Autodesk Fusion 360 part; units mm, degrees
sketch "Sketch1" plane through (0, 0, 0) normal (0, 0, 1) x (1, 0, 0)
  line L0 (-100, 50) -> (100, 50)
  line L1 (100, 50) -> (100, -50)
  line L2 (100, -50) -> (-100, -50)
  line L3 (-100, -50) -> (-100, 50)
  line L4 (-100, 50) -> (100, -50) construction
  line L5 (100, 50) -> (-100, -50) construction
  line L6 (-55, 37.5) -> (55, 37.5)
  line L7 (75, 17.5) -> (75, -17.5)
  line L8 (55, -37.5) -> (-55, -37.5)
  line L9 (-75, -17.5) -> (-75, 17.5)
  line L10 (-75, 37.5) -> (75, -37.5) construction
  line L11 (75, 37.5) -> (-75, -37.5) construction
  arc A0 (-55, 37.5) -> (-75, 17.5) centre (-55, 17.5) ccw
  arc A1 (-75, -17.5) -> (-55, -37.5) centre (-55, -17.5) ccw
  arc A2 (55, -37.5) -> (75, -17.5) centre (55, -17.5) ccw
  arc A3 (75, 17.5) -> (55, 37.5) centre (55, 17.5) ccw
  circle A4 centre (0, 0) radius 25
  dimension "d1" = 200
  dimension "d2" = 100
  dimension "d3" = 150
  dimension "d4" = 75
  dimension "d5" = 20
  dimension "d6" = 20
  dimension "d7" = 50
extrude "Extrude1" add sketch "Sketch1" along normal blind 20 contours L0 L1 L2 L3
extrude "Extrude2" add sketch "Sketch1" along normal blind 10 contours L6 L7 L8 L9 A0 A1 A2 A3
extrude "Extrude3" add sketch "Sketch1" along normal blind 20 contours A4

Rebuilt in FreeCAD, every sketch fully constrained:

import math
import FreeCAD as App
import Part
import Sketcher
from FreeCAD import Vector
Q = App.Units.Quantity

doc = App.newDocument("Part")
body = doc.addObject("PartDesign::Body", "Body")

# Sketch on XY plane
sketch1 = body.newObject("Sketcher::SketchObject", "Sketch")
sketch1.AttachmentSupport = (doc.getObject("XY_Plane"), [""])
sketch1.MapMode = "FlatFace"
sketch1.addGeometry([
    Part.LineSegment(Vector(100, 50, 0), Vector(-100, 50, 0)),  # 0
    Part.LineSegment(Vector(-100, 50, 0), Vector(-100, -50, 0)),  # 1
    Part.LineSegment(Vector(-100, -50, 0), Vector(100, -50, 0)),  # 2
    Part.LineSegment(Vector(100, -50, 0), Vector(100, 50, 0)),  # 3
    Part.ArcOfCircle(Part.Circle(Vector(-55, 18, 0), Vector(0, 0, 1), 20), math.radians(90), math.radians(180)),  # 4
    Part.LineSegment(Vector(-55, 38, 0), Vector(55, 38, 0)),  # 5
    Part.ArcOfCircle(Part.Circle(Vector(55, 18, 0), Vector(0, 0, 1), 20), math.radians(0), math.radians(90)),  # 6
    Part.LineSegment(Vector(75, 18, 0), Vector(75, -18, 0)),  # 7
    Part.ArcOfCircle(Part.Circle(Vector(55, -18, 0), Vector(0, 0, 1), 20), math.radians(-90), math.radians(0)),  # 8
    Part.LineSegment(Vector(55, -38, 0), Vector(-55, -38, 0)),  # 9
    Part.ArcOfCircle(Part.Circle(Vector(-55, -18, 0), Vector(0, 0, 1), 20), math.radians(180), math.radians(270)),  # 10
    Part.LineSegment(Vector(-75, -18, 0), Vector(-75, 18, 0)),  # 11
], False)
sketch1.addConstraint([
    Sketcher.Constraint("Coincident", 0, 2, 1, 1),
    Sketcher.Constraint("Coincident", 1, 2, 2, 1),
    Sketcher.Constraint("Coincident", 2, 2, 3, 1),
    Sketcher.Constraint("Coincident", 3, 2, 0, 1),
    Sketcher.Constraint("Tangent", 4, 1, 5, 1),
    Sketcher.Constraint("Tangent", 5, 2, 6, 2),
    Sketcher.Constraint("Tangent", 6, 1, 7, 1),
    Sketcher.Constraint("Tangent", 7, 2, 8, 2),
    Sketcher.Constraint("Tangent", 8, 1, 9, 1),
    Sketcher.Constraint("Tangent", 9, 2, 10, 2),
    Sketcher.Constraint("Tangent", 10, 1, 11, 1),
    Sketcher.Constraint("Tangent", 11, 2, 4, 2),
    Sketcher.Constraint("Horizontal", 0),
    Sketcher.Constraint("Vertical", 1),
    Sketcher.Constraint("Horizontal", 2),
    Sketcher.Constraint("Vertical", 3),
    Sketcher.Constraint("Horizontal", 5),
    Sketcher.Constraint("Vertical", 7),
    Sketcher.Constraint("Horizontal", 9),
    Sketcher.Constraint("Vertical", 11),
    Sketcher.Constraint("Equal", 4, 6),
    Sketcher.Constraint("Equal", 6, 8),
    Sketcher.Constraint("Equal", 8, 10),
    Sketcher.Constraint("Symmetric", 4, 3, 8, 3, -1, 1),
    Sketcher.Constraint("Symmetric", 0, 2, 2, 2, -1, 1),
    Sketcher.Constraint("Radius", 4, Q("20 mm")),
    Sketcher.Constraint("DistanceX", 0, 2, 0, 1, Q("200 mm")),
    Sketcher.Constraint("DistanceY", 1, 2, 1, 1, Q("100 mm")),
    Sketcher.Constraint("DistanceX", -1, 1, 6, 1, Q("75 mm")),
    Sketcher.Constraint("DistanceY", 9, 2, 4, 1, Q("75 mm")),
])
pad1 = body.newObject("PartDesign::Pad", "Pad")
pad1.Profile = sketch1
pad1.Length = 20

# Sketch on XY plane
sketch2 = body.newObject("Sketcher::SketchObject", "Sketch001")
sketch2.AttachmentSupport = (doc.getObject("XY_Plane"), [""])
sketch2.MapMode = "FlatFace"
sketch2.addGeometry([
    Part.LineSegment(Vector(55, 38, 0), Vector(-55, 38, 0)),  # 0
    Part.ArcOfCircle(Part.Circle(Vector(-55, 18, 0), Vector(0, 0, 1), 20), math.radians(90), math.radians(180)),  # 1
    Part.LineSegment(Vector(-75, 18, 0), Vector(-75, -18, 0)),  # 2
    Part.ArcOfCircle(Part.Circle(Vector(-55, -18, 0), Vector(0, 0, 1), 20), math.radians(180), math.radians(270)),  # 3
    Part.LineSegment(Vector(-55, -38, 0), Vector(55, -38, 0)),  # 4
    Part.ArcOfCircle(Part.Circle(Vector(55, -18, 0), Vector(0, 0, 1), 20), math.radians(-90), math.radians(0)),  # 5
    Part.LineSegment(Vector(75, -18, 0), Vector(75, 18, 0)),  # 6
    Part.ArcOfCircle(Part.Circle(Vector(55, 18, 0), Vector(0, 0, 1), 20), math.radians(0), math.radians(90)),  # 7
    Part.Circle(Vector(0, 0, 0), Vector(0, 0, 1), 25),  # 8
], False)
sketch2.addConstraint([
    Sketcher.Constraint("Tangent", 0, 2, 1, 1),
    Sketcher.Constraint("Tangent", 1, 2, 2, 1),
    Sketcher.Constraint("Tangent", 2, 2, 3, 1),
    Sketcher.Constraint("Tangent", 3, 2, 4, 1),
    Sketcher.Constraint("Tangent", 4, 2, 5, 1),
    Sketcher.Constraint("Tangent", 5, 2, 6, 1),
    Sketcher.Constraint("Tangent", 6, 2, 7, 1),
    Sketcher.Constraint("Tangent", 7, 2, 0, 1),
    Sketcher.Constraint("Horizontal", 0),
    Sketcher.Constraint("Vertical", 2),
    Sketcher.Constraint("Horizontal", 4),
    Sketcher.Constraint("Vertical", 6),
    Sketcher.Constraint("Coincident", 8, 3, -1, 1),
    Sketcher.Constraint("Equal", 1, 3),
    Sketcher.Constraint("Equal", 3, 5),
    Sketcher.Constraint("Equal", 5, 7),
    Sketcher.Constraint("Symmetric", 1, 3, 5, 3, -1, 1),
    Sketcher.Constraint("Diameter", 8, Q("50 mm")),
    Sketcher.Constraint("Radius", 1, Q("20 mm")),
    Sketcher.Constraint("DistanceX", 1, 2, -1, 1, Q("75 mm")),
    Sketcher.Constraint("DistanceY", 2, 2, 2, 1, Q("35 mm")),
])
pad2 = body.newObject("PartDesign::Pad", "Pad001")
pad2.Profile = sketch2
pad2.Length = 10

# Sketch on XY plane
sketch3 = body.newObject("Sketcher::SketchObject", "Sketch002")
sketch3.AttachmentSupport = (doc.getObject("XY_Plane"), [""])
sketch3.MapMode = "FlatFace"
sketch3.addGeometry(Part.Circle(Vector(0, 0, 0), Vector(0, 0, 1), 25), False)
sketch3.addConstraint([
    Sketcher.Constraint("Coincident", 0, 3, -1, 1),
    Sketcher.Constraint("Diameter", 0, Q("50 mm")),
])
pad3 = body.newObject("PartDesign::Pad", "Pad002")
pad3.Profile = sketch3
pad3.Length = 20

doc.recompute()
